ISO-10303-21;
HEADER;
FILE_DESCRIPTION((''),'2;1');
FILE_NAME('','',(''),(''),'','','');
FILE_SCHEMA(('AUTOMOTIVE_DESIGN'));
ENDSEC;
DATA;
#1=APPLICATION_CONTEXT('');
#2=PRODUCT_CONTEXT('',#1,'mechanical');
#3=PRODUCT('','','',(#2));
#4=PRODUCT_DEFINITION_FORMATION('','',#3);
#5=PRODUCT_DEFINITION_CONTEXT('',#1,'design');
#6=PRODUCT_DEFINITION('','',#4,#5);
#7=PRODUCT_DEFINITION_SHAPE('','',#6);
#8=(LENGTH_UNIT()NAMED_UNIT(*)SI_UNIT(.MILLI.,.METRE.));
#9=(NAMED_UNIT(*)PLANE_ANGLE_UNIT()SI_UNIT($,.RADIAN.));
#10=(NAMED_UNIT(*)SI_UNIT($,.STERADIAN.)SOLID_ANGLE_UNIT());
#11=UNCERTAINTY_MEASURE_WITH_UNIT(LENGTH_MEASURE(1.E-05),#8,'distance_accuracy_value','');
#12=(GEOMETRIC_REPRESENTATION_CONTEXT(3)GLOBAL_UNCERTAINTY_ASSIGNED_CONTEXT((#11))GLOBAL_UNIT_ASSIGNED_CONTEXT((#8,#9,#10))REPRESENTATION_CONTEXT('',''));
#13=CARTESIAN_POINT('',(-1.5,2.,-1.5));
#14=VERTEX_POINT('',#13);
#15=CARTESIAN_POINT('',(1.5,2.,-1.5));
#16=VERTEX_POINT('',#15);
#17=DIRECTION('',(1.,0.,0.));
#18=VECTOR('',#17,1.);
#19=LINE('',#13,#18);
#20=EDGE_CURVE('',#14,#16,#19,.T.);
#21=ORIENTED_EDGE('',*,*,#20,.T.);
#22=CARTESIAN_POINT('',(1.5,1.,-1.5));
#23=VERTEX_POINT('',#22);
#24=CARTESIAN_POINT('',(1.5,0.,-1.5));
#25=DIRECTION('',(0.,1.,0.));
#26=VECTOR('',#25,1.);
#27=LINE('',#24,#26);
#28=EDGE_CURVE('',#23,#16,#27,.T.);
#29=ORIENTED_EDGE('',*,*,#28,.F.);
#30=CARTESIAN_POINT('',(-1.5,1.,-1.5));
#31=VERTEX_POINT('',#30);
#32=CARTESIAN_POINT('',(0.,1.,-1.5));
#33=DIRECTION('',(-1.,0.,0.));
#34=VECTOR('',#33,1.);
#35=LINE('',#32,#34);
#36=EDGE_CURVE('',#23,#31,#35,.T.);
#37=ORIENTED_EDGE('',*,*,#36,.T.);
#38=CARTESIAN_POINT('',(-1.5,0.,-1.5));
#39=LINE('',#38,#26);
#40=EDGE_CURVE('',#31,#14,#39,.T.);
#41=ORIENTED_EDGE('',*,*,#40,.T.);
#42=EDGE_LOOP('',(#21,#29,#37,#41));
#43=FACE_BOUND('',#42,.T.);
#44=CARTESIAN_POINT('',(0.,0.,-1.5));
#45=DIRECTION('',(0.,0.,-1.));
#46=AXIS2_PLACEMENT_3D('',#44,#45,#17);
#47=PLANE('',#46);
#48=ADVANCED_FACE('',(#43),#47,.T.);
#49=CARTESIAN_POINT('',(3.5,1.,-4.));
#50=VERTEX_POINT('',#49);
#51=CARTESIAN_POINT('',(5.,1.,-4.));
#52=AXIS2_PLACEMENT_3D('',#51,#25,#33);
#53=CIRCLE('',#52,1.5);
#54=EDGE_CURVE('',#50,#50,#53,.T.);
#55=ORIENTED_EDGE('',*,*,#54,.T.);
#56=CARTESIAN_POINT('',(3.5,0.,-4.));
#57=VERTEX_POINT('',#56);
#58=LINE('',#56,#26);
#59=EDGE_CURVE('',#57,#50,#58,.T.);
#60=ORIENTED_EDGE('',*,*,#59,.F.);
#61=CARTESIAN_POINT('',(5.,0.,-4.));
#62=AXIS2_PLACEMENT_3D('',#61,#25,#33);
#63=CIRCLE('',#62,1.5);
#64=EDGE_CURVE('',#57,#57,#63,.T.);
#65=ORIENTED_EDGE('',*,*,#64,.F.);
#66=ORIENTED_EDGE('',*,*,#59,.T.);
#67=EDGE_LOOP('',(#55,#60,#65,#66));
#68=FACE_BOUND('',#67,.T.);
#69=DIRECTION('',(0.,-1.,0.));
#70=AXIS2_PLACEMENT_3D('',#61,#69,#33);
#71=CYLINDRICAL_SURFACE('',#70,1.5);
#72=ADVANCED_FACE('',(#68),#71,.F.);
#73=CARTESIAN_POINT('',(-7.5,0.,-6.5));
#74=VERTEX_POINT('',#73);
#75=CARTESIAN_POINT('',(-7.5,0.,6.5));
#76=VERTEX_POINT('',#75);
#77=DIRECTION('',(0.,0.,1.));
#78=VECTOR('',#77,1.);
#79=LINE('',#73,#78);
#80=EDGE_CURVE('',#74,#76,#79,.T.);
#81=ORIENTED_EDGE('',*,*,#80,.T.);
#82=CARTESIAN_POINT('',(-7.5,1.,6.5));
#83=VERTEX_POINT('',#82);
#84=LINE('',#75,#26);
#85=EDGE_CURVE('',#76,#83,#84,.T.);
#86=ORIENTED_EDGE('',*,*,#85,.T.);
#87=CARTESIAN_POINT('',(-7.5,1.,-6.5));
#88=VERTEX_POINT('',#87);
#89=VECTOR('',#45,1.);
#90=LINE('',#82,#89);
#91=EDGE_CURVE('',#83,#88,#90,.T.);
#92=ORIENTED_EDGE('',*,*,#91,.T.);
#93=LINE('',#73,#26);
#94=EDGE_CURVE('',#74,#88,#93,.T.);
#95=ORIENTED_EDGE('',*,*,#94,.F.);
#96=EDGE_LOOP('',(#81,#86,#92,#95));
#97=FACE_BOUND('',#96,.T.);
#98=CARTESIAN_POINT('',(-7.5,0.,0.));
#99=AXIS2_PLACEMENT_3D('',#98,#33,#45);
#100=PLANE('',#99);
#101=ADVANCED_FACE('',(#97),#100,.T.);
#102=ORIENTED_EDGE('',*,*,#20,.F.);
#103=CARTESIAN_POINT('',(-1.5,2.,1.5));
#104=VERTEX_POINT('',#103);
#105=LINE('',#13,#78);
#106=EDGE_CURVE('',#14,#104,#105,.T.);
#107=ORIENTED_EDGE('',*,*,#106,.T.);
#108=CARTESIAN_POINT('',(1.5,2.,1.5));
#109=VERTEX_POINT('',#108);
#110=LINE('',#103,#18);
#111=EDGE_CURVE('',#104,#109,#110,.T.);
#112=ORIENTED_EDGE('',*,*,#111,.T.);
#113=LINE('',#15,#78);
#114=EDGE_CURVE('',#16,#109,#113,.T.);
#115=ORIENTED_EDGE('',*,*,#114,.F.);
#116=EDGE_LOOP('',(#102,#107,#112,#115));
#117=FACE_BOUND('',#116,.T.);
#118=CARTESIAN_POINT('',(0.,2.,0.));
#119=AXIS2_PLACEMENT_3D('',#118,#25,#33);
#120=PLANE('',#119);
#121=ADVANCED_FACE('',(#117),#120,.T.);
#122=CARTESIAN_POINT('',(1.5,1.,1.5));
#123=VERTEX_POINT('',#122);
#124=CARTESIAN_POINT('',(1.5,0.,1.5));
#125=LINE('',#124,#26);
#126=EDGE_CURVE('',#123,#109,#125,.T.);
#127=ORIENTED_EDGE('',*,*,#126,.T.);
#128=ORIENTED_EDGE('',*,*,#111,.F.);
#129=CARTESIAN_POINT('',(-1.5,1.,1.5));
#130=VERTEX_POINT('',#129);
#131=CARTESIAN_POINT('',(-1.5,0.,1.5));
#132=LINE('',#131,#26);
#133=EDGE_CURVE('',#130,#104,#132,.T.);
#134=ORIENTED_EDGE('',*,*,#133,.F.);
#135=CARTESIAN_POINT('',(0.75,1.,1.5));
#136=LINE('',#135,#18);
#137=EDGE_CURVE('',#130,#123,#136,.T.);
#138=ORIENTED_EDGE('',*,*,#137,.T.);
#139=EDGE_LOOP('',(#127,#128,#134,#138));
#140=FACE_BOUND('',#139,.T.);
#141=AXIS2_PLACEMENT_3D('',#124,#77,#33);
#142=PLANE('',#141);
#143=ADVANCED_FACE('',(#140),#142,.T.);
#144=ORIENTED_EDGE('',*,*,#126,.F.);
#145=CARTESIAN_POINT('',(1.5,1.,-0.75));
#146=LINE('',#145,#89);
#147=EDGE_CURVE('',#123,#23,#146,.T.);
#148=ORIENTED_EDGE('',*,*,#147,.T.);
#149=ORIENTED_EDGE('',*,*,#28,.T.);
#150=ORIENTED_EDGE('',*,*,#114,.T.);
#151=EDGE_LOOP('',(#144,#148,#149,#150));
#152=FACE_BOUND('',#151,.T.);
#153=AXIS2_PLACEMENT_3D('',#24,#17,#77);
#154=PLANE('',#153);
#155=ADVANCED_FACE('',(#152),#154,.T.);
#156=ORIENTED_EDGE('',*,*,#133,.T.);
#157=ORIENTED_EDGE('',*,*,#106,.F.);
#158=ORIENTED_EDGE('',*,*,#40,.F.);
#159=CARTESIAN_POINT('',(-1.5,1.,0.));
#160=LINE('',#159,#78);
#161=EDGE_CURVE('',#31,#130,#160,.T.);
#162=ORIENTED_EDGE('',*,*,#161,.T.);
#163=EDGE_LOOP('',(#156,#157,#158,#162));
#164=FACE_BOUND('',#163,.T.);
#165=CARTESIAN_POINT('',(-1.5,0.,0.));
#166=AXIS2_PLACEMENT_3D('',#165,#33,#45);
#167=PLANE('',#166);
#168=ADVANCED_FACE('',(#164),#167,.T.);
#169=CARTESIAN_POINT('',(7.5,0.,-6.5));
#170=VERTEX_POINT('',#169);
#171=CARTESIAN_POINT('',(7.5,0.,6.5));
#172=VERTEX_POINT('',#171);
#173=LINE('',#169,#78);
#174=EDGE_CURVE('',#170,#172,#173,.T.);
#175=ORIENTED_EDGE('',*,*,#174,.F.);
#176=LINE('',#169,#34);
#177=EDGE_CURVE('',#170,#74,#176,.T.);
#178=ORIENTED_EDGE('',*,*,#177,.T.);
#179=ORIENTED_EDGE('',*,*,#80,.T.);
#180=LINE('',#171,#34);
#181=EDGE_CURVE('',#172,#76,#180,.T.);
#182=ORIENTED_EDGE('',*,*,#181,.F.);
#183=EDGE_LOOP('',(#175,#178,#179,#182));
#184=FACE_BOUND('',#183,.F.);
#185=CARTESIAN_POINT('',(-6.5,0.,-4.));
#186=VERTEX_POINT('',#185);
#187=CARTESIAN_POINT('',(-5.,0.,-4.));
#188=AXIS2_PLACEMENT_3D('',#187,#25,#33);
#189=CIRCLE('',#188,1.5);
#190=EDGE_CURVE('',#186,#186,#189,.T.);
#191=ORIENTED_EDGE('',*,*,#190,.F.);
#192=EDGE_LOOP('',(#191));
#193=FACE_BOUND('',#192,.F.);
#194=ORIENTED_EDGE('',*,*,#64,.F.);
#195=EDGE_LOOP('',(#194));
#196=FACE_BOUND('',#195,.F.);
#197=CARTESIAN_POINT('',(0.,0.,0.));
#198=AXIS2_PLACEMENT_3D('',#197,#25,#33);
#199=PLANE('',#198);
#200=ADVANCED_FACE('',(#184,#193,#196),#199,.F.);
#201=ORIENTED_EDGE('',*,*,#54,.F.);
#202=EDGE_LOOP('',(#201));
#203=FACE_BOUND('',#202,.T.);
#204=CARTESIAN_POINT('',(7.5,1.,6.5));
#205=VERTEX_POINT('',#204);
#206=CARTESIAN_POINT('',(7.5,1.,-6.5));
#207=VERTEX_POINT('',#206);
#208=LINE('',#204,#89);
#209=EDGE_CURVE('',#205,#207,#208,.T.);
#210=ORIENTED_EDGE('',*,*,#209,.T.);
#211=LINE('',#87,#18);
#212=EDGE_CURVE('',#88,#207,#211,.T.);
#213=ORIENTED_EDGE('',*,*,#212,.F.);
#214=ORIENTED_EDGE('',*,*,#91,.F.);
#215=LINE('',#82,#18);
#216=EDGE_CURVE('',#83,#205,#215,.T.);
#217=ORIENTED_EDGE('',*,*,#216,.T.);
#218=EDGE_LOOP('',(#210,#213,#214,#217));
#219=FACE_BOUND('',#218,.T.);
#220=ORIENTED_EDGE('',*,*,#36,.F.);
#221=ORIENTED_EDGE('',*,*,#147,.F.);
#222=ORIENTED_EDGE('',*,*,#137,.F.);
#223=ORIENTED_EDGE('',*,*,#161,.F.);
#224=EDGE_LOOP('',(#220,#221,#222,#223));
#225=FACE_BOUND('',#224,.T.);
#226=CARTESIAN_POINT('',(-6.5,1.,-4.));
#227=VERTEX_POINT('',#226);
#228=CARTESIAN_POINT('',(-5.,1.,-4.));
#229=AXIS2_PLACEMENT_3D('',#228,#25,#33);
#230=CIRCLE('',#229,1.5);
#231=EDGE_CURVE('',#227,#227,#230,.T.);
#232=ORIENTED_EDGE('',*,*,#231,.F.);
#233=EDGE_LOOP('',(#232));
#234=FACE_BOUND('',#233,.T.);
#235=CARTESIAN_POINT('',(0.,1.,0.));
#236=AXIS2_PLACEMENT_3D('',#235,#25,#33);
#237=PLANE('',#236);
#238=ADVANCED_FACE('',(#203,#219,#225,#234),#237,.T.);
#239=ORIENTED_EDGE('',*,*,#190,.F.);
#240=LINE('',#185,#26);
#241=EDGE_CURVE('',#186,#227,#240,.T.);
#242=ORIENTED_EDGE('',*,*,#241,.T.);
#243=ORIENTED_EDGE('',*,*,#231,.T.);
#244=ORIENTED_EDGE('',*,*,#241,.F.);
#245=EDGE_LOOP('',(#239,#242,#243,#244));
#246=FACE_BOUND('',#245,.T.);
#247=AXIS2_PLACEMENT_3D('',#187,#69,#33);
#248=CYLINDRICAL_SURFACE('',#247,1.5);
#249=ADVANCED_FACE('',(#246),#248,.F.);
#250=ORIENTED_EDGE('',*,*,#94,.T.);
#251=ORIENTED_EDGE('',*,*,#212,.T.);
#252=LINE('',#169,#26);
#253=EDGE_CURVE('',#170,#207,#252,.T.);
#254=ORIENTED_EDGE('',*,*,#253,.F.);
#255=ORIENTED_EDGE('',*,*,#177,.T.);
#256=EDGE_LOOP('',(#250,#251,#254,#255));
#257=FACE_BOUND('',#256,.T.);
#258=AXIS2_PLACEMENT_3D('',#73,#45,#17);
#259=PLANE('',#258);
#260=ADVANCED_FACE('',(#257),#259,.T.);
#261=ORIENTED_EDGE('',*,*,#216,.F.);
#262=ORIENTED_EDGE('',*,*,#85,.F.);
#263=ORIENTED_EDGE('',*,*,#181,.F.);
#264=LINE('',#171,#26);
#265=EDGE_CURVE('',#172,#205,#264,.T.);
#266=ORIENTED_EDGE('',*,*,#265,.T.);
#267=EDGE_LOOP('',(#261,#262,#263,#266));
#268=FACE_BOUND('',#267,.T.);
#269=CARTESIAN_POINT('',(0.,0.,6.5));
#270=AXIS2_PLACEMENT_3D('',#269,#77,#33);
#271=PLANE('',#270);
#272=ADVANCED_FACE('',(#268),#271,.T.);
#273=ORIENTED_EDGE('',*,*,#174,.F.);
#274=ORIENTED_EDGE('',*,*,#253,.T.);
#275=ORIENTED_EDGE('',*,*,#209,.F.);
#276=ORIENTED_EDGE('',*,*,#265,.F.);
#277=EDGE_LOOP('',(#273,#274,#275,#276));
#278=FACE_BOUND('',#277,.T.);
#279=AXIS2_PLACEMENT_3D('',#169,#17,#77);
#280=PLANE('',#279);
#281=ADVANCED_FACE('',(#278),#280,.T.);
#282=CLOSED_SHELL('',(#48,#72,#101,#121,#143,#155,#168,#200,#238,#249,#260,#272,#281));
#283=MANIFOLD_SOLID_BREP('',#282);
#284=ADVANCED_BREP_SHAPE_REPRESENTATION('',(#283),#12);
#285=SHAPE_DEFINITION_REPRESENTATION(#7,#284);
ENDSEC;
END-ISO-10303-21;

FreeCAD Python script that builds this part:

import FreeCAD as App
import Part
import Sketcher
from FreeCAD import Vector

doc = App.newDocument("Part")
body = doc.addObject("PartDesign::Body", "Body")

sketch1 = body.newObject("Sketcher::SketchObject", "Sketch")
sketch1.AttachmentSupport = (doc.getObject("XZ_Plane"), [""])
sketch1.MapMode = "FlatFace"
sketch1.addGeometry(Part.LineSegment(Vector(-7.5, -6.5, 0), Vector(-7.5, 6.5, 0)), False)
sketch1.addGeometry(Part.LineSegment(Vector(-7.5, 6.5, 0), Vector(7.5, 6.5, 0)), False)
sketch1.addGeometry(Part.LineSegment(Vector(7.5, 6.5, 0), Vector(7.5, -6.5, 0)), False)
sketch1.addGeometry(Part.LineSegment(Vector(7.5, -6.5, 0), Vector(-7.5, -6.5, 0)), False)
sketch1.addGeometry(Part.Circle(Vector(-5, -4, 0), Vector(0, 0, 1), 1.5), False)
sketch1.addGeometry(Part.Circle(Vector(5, -4, 0), Vector(0, 0, 1), 1.5), False)
sketch1.addConstraint(Sketcher.Constraint("Coincident", 0, 2, 1, 1))
sketch1.addConstraint(Sketcher.Constraint("Coincident", 1, 2, 2, 1))
sketch1.addConstraint(Sketcher.Constraint("Coincident", 2, 2, 3, 1))
sketch1.addConstraint(Sketcher.Constraint("Coincident", 3, 2, 0, 1))
sketch1.addConstraint(Sketcher.Constraint("Vertical", 0))
sketch1.addConstraint(Sketcher.Constraint("Horizontal", 1))
sketch1.addConstraint(Sketcher.Constraint("Vertical", 2))
sketch1.addConstraint(Sketcher.Constraint("Horizontal", 3))
sketch1.addConstraint(Sketcher.Constraint("Equal", 4, 5))
sketch1.addConstraint(Sketcher.Constraint("Symmetric", 0, 2, 2, 2, -1, 1))
sketch1.addConstraint(Sketcher.Constraint("Symmetric", 4, 3, 5, 3, -2))
sketch1.addConstraint(Sketcher.Constraint("Diameter", 4, 3.0))
sketch1.addConstraint(Sketcher.Constraint("DistanceX", 1, 1, 1, 2, 15.0))
sketch1.addConstraint(Sketcher.Constraint("DistanceY", 0, 1, 0, 2, 13.0))
sketch1.addConstraint(Sketcher.Constraint("DistanceX", 0, 2, 4, 3, 2.5))
sketch1.addConstraint(Sketcher.Constraint("DistanceY", 2, 2, 5, 3, 2.5))
pad1 = body.newObject("PartDesign::Pad", "Pad")
pad1.Profile = sketch1
pad1.Length = 1
pad1.Reversed = True

sketch2 = body.newObject("Sketcher::SketchObject", "Sketch001")
sketch2.AttachmentSupport = (doc.getObject("XZ_Plane"), [""])
sketch2.MapMode = "FlatFace"
sketch2.addGeometry(Part.LineSegment(Vector(1.5, -1.5, 0), Vector(-1.5, -1.5, 0)), False)
sketch2.addGeometry(Part.LineSegment(Vector(-1.5, -1.5, 0), Vector(-1.5, 1.5, 0)), False)
sketch2.addGeometry(Part.LineSegment(Vector(-1.5, 1.5, 0), Vector(1.5, 1.5, 0)), False)
sketch2.addGeometry(Part.LineSegment(Vector(1.5, 1.5, 0), Vector(1.5, -1.5, 0)), False)
sketch2.addConstraint(Sketcher.Constraint("Coincident", 0, 2, 1, 1))
sketch2.addConstraint(Sketcher.Constraint("Coincident", 1, 2, 2, 1))
sketch2.addConstraint(Sketcher.Constraint("Coincident", 2, 2, 3, 1))
sketch2.addConstraint(Sketcher.Constraint("Coincident", 3, 2, 0, 1))
sketch2.addConstraint(Sketcher.Constraint("Horizontal", 0))
sketch2.addConstraint(Sketcher.Constraint("Vertical", 1))
sketch2.addConstraint(Sketcher.Constraint("Horizontal", 2))
sketch2.addConstraint(Sketcher.Constraint("Vertical", 3))
sketch2.addConstraint(Sketcher.Constraint("Symmetric", 0, 2, 2, 2, -1, 1))
sketch2.addConstraint(Sketcher.Constraint("Equal", 2, 1))
sketch2.addConstraint(Sketcher.Constraint("DistanceX", 0, 2, 0, 1, 3.0))
pad2 = body.newObject("PartDesign::Pad", "Pad001")
pad2.Profile = sketch2
pad2.Length = 2
pad2.Reversed = True

doc.recompute()
